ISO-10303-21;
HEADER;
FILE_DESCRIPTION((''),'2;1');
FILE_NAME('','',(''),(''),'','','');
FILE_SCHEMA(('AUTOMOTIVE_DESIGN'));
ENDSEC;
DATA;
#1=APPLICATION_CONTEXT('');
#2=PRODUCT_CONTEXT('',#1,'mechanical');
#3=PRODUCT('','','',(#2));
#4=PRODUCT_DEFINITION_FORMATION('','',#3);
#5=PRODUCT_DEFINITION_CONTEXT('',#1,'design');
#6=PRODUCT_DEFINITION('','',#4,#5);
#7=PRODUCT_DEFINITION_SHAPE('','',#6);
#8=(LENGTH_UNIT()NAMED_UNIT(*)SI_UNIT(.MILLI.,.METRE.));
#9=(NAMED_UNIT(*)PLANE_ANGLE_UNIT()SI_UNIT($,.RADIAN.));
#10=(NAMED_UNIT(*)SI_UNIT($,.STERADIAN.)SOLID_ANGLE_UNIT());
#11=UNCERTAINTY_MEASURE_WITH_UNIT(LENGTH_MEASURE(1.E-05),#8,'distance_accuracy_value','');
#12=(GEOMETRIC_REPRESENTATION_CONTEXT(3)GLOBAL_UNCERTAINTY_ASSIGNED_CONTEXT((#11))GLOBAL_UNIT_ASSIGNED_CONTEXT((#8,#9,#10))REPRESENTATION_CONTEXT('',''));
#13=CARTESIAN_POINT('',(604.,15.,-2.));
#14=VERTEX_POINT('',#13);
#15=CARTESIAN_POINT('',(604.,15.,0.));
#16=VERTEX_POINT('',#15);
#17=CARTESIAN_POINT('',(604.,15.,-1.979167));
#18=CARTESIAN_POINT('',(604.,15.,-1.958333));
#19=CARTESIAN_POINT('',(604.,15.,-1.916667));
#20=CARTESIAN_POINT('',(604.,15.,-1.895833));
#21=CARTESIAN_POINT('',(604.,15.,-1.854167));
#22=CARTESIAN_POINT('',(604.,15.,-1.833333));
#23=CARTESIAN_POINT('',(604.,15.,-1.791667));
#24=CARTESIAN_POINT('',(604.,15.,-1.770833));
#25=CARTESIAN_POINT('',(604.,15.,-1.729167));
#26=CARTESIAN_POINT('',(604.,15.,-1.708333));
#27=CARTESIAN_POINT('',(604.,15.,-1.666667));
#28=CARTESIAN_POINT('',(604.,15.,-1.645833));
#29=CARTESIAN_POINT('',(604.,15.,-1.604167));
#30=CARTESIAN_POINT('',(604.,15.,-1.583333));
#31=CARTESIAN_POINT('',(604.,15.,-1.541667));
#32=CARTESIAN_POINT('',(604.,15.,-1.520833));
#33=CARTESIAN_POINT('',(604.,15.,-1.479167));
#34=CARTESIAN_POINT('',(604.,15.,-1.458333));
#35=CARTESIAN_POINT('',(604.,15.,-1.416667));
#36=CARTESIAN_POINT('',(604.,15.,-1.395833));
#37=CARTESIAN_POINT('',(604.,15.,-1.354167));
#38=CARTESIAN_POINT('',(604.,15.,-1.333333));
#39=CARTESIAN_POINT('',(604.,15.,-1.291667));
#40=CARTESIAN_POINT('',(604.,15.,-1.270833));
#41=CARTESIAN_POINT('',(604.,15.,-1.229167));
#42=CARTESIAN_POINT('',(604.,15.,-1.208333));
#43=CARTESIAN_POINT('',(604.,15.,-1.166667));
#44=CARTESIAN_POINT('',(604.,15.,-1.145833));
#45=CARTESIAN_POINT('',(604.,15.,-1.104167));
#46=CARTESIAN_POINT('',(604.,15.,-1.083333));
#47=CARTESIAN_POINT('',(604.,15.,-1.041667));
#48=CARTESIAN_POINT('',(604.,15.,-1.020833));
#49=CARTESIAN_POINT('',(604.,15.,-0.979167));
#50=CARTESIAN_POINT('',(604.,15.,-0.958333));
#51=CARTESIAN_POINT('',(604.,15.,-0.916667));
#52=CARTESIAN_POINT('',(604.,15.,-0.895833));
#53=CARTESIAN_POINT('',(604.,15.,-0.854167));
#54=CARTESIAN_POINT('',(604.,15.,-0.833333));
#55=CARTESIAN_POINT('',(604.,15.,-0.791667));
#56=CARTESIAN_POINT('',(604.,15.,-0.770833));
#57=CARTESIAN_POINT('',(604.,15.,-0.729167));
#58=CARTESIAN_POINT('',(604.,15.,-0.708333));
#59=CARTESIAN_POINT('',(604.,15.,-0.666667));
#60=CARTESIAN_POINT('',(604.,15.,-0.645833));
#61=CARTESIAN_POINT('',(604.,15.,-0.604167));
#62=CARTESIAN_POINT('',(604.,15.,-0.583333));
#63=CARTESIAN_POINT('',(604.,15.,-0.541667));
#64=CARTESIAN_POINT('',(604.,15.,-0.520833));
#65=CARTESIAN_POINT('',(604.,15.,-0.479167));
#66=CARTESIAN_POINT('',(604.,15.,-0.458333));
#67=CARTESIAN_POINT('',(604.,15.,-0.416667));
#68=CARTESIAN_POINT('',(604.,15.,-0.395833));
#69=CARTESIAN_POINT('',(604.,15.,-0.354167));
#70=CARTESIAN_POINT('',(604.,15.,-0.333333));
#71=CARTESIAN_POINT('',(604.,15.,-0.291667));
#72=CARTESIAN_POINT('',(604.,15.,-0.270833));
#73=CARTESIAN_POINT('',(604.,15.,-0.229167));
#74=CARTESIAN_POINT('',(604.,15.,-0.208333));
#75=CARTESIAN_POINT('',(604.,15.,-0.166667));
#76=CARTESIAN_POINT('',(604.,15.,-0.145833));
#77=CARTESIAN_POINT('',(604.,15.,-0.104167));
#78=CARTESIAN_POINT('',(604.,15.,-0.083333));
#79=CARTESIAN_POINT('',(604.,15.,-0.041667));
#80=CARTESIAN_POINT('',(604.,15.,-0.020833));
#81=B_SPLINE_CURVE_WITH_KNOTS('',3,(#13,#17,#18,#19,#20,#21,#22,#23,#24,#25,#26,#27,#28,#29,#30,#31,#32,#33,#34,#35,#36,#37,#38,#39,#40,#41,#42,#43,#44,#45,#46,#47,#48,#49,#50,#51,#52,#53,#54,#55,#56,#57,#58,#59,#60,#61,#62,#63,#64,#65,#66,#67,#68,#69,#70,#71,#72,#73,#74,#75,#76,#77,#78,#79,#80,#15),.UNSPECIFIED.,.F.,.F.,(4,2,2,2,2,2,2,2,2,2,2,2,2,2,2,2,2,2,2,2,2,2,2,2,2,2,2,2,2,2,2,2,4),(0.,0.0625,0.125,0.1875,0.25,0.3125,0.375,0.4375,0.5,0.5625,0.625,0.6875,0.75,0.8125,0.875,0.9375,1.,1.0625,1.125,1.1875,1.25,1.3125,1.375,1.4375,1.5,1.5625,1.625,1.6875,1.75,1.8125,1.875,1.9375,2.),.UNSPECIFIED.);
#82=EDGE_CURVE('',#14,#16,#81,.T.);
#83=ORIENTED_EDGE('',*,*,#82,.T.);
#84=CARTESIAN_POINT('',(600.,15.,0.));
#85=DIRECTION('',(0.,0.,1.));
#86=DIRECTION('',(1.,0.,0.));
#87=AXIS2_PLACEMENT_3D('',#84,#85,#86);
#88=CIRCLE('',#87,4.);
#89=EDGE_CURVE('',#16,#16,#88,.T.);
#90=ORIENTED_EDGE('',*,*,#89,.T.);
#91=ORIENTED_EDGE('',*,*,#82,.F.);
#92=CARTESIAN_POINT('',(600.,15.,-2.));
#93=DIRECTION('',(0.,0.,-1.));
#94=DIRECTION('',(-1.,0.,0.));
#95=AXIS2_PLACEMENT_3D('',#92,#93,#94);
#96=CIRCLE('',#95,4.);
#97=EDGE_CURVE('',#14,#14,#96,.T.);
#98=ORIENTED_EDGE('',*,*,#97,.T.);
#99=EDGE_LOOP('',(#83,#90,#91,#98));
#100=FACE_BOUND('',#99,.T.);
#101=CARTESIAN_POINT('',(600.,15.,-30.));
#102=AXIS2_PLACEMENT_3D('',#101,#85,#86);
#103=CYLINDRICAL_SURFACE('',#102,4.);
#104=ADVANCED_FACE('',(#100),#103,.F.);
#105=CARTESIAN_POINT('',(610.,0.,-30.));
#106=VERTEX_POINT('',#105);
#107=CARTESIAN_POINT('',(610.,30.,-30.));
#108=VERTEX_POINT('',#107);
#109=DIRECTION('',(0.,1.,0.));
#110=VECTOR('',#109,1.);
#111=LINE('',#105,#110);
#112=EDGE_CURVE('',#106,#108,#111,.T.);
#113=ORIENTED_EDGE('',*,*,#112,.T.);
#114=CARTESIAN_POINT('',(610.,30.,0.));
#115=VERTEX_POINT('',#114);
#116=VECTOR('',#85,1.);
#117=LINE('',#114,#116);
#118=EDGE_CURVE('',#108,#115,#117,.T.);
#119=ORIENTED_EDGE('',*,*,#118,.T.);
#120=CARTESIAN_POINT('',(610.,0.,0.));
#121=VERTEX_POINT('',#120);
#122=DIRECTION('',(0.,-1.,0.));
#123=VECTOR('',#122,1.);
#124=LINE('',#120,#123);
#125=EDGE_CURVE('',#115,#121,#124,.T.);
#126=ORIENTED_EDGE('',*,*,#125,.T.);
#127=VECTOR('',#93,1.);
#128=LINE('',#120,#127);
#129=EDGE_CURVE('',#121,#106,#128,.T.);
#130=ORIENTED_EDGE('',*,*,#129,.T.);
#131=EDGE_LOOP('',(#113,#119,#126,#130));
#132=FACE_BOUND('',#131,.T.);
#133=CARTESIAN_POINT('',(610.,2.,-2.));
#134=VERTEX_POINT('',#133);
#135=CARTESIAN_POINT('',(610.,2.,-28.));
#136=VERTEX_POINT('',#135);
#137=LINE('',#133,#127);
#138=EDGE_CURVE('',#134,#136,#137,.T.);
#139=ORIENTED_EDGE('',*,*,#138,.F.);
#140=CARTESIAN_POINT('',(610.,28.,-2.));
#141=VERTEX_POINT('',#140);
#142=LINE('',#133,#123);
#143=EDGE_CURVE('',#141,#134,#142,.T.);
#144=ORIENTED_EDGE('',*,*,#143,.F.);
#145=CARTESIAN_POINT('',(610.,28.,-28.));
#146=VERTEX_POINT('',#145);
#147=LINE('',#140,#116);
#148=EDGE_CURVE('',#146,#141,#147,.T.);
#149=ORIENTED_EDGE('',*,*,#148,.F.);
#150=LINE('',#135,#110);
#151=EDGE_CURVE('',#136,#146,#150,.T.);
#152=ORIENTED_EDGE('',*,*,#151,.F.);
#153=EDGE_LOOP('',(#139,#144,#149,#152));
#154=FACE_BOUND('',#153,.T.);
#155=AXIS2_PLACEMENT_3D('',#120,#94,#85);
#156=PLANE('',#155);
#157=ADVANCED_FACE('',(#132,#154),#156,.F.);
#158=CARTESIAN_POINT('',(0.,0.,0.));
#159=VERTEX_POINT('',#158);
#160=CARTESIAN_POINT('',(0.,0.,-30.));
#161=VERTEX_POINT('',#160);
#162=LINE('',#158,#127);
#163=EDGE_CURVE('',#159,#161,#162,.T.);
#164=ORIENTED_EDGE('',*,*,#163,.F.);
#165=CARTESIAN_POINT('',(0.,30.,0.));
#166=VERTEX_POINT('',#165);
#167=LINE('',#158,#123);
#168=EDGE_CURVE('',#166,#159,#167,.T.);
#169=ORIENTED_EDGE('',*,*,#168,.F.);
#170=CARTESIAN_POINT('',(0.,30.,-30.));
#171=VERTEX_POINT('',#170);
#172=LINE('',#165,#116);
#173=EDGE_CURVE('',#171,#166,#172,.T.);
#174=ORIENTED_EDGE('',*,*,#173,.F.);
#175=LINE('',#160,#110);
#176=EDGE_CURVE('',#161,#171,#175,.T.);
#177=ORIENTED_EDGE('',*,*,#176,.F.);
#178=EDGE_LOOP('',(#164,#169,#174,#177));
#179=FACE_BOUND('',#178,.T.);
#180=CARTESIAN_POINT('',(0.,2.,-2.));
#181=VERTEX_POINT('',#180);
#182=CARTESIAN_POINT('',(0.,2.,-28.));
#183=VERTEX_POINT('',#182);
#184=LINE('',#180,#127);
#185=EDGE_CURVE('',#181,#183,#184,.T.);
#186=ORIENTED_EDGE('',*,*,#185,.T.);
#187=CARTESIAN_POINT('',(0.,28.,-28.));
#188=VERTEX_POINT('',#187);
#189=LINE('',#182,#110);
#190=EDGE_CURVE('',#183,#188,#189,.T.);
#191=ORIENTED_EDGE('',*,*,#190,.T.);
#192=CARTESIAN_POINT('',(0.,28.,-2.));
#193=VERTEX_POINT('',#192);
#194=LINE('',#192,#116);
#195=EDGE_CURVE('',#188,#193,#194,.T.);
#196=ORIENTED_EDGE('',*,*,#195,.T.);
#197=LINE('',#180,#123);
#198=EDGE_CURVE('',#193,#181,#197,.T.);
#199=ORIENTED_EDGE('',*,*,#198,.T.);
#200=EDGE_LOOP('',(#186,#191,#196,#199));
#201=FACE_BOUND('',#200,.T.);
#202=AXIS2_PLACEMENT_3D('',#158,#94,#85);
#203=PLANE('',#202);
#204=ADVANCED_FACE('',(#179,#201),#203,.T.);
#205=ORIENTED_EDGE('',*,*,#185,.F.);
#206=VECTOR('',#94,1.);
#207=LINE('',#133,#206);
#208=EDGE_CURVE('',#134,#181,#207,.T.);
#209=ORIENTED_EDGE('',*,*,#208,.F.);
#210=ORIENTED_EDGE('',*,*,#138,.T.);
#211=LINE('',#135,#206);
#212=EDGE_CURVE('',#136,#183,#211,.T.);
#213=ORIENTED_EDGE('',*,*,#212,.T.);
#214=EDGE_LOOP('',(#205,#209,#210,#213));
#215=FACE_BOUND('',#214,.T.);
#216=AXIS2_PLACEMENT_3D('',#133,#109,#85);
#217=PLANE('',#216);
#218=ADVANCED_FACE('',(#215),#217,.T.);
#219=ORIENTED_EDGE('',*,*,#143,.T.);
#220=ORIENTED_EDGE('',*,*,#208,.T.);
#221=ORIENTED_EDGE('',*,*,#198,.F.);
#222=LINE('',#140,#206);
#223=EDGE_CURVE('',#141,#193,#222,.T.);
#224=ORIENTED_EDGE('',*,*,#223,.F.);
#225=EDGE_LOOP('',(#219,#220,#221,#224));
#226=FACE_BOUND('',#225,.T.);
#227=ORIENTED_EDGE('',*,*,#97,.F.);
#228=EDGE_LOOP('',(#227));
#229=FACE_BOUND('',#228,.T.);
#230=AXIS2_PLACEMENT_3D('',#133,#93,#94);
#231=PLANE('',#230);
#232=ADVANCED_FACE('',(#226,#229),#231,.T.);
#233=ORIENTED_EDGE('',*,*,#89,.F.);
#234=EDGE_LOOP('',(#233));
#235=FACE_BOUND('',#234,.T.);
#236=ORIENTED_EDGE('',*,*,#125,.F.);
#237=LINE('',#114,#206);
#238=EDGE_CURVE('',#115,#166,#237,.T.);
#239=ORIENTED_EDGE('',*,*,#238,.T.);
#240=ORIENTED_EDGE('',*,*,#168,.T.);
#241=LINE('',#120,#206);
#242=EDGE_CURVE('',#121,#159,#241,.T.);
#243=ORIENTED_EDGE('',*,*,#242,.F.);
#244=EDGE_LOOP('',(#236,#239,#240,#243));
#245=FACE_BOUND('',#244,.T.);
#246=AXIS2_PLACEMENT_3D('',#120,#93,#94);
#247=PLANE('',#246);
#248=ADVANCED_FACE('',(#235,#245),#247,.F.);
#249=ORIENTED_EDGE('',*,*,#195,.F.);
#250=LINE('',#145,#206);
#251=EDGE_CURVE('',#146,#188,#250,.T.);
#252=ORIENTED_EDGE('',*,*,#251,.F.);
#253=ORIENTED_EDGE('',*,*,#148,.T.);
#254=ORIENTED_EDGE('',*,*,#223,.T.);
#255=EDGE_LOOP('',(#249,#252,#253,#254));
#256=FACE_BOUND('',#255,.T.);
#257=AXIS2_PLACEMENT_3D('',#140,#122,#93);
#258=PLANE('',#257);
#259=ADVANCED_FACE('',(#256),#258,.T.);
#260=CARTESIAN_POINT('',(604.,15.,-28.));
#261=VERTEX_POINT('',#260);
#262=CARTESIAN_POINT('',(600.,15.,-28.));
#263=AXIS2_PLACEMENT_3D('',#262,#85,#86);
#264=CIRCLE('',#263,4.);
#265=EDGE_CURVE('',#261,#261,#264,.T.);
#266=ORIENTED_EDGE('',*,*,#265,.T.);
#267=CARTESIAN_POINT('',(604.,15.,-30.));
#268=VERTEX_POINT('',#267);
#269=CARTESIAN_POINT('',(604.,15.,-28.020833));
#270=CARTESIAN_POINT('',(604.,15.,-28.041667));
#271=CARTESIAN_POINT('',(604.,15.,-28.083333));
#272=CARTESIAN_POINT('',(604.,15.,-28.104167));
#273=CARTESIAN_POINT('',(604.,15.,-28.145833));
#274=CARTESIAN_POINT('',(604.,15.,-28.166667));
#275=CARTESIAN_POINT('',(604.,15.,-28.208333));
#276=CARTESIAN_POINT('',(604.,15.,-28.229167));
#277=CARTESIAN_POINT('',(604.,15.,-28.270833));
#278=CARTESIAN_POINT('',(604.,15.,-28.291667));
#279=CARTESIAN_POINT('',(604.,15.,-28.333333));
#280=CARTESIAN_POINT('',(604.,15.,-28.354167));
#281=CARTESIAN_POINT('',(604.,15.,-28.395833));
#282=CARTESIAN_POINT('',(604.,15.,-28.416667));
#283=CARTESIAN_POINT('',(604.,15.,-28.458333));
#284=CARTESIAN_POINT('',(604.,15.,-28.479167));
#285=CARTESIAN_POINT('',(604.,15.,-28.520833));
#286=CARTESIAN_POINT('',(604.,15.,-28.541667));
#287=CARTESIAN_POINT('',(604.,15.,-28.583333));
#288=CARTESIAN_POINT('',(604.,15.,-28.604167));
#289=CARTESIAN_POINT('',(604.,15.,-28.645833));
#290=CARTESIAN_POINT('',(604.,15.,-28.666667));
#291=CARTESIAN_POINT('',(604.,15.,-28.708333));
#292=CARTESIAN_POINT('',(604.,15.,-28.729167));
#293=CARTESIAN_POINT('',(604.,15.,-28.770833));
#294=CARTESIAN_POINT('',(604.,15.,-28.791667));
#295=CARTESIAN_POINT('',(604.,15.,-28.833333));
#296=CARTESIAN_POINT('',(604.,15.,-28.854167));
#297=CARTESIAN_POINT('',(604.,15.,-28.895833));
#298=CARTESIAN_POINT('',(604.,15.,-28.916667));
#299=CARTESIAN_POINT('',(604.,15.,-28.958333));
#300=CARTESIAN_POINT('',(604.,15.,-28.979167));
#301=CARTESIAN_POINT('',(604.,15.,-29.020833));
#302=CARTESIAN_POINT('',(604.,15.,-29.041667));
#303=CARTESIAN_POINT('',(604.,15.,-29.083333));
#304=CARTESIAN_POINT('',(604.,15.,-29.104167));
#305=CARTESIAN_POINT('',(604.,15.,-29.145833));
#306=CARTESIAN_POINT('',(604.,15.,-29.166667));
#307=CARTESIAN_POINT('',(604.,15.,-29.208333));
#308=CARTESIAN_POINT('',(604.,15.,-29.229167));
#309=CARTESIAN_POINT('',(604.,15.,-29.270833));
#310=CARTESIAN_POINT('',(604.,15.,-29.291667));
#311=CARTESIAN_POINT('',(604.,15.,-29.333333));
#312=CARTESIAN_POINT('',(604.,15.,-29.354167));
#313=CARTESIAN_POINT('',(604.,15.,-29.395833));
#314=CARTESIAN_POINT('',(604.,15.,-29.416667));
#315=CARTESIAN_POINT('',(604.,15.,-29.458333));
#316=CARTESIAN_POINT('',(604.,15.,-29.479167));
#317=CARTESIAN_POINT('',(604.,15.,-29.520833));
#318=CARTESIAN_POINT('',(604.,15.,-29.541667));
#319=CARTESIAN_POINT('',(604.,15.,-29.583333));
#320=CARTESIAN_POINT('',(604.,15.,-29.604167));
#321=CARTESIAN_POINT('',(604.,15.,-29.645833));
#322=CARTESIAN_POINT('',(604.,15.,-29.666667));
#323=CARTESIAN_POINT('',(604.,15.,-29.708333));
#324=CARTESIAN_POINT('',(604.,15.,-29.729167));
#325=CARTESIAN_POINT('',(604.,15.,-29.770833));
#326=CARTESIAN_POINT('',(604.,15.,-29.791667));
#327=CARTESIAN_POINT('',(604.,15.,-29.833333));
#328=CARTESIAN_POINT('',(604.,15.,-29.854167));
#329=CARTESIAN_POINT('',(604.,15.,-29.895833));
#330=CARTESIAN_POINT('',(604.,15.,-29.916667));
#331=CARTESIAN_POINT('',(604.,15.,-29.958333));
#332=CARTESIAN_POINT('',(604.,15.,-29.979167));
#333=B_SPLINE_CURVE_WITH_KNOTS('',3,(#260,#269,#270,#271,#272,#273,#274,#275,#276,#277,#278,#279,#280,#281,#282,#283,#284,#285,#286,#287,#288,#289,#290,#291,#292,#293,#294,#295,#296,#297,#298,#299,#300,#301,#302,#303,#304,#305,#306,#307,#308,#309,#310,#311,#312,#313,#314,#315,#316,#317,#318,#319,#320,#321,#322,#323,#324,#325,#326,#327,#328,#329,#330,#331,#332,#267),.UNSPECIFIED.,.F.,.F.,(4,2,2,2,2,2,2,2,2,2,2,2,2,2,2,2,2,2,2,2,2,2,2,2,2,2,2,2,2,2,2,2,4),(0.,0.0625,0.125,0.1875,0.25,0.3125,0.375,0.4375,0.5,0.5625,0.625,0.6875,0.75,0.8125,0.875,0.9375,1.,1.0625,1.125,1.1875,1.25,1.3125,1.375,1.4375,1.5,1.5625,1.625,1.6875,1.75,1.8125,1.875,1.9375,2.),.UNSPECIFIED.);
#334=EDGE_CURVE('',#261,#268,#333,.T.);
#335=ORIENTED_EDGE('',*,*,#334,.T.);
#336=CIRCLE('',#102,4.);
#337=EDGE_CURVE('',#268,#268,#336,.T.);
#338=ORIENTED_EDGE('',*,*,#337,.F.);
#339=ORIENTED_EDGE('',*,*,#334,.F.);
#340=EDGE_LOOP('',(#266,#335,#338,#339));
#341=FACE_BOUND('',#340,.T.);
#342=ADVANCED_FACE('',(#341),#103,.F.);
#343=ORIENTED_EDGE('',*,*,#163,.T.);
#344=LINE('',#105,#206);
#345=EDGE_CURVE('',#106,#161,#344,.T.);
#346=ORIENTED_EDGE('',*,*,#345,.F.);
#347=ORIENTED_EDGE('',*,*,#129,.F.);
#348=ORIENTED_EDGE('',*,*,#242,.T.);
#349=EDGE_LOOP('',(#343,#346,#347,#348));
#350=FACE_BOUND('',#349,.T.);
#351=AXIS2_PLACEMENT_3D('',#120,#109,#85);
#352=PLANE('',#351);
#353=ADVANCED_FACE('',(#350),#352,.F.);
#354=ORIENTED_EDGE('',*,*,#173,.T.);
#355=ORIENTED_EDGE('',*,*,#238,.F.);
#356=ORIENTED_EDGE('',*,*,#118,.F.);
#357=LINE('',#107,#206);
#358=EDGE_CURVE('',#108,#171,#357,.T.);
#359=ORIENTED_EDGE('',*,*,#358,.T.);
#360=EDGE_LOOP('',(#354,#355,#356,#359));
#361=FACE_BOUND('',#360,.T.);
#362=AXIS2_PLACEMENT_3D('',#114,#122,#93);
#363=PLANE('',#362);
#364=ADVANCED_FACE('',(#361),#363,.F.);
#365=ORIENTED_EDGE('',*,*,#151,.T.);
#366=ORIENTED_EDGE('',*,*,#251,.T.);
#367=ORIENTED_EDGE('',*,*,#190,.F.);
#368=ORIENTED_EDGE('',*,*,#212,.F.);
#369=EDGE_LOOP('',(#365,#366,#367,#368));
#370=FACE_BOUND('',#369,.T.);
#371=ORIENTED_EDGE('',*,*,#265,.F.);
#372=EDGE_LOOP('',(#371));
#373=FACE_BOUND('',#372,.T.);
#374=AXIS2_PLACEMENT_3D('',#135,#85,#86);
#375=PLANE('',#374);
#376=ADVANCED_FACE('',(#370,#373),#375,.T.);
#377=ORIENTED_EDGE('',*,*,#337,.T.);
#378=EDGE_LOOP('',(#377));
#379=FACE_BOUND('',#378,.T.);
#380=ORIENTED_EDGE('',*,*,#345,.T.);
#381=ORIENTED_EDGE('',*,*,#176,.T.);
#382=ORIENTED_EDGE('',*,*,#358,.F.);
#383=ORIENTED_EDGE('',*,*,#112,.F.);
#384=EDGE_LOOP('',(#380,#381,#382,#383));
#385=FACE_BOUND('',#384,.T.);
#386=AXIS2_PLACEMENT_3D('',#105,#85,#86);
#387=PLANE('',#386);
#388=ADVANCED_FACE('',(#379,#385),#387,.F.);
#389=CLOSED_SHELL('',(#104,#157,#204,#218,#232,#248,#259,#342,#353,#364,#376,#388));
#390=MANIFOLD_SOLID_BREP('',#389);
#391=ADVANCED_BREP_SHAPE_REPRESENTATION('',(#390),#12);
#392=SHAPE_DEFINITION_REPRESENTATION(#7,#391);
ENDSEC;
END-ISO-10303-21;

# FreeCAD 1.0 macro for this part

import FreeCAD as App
import Part
import Sketcher
from FreeCAD import Vector
Q = App.Units.Quantity


def add_polygon(sketch, points):
    """Adds a closed chain of lines whose ends are joined by coincident constraints."""
    first, n = sketch.GeometryCount, len(points)
    for a, b in zip(points, points[1:] + points[:1]):
        sketch.addGeometry(Part.LineSegment(App.Vector(*a, 0), App.Vector(*b, 0)), False)
    for i in range(n):
        sketch.addConstraint(Sketcher.Constraint("Coincident", first + i, 2, first + (i + 1) % n, 1))

doc = App.newDocument("Part")
body = doc.addObject("PartDesign::Body", "Body")

# Sketch on YZ plane
sketch1 = body.newObject("Sketcher::SketchObject", "Sketch")
sketch1.AttachmentSupport = (doc.getObject("YZ_Plane"), [""])
sketch1.MapMode = "FlatFace"
add_polygon(sketch1, [(30, 0), (0, 0), (0, -30), (30, -30)])  # lines 0-3
add_polygon(sketch1, [(2, -28), (2, -2), (28, -2), (28, -28)])  # lines 4-7
sketch1.addConstraint([
    Sketcher.Constraint("Horizontal", 0),
    Sketcher.Constraint("Vertical", 1),
    Sketcher.Constraint("Horizontal", 2),
    Sketcher.Constraint("Vertical", 3),
    Sketcher.Constraint("Vertical", 4),
    Sketcher.Constraint("Horizontal", 5),
    Sketcher.Constraint("Vertical", 6),
    Sketcher.Constraint("Horizontal", 7),
    Sketcher.Constraint("Coincident", 0, 2, -1, 1),
    Sketcher.Constraint("Equal", 2, 1),
    Sketcher.Constraint("Equal", 7, 4),
    Sketcher.Constraint("DistanceX", 0, 2, 0, 1, Q("30 mm")),
    Sketcher.Constraint("DistanceX", 5, 1, 5, 2, Q("26 mm")),
    Sketcher.Constraint("DistanceX", -1, 1, 4, 2, Q("2 mm")),
    Sketcher.Constraint("DistanceY", 4, 2, -1, 1, Q("2 mm")),
])
pad1 = body.newObject("PartDesign::Pad", "Pad")
pad1.Profile = sketch1
pad1.Length = 610

# Sketch on XY plane
sketch2 = body.newObject("Sketcher::SketchObject", "Sketch001")
sketch2.AttachmentSupport = (doc.getObject("XY_Plane"), [""])
sketch2.MapMode = "FlatFace"
sketch2.addGeometry(Part.Circle(Vector(600, 15, 0), Vector(0, 0, 1), 4), False)
sketch2.addConstraint([
    Sketcher.Constraint("Diameter", 0, Q("8 mm")),
    Sketcher.Constraint("DistanceX", -1, 1, 0, 3, Q("600 mm")),
    Sketcher.Constraint("DistanceY", -1, 1, 0, 3, Q("15 mm")),
])
pocket1 = body.newObject("PartDesign::Pocket", "Pocket")
pocket1.Profile = sketch2
pocket1.Type = "ThroughAll"

doc.recompute()
